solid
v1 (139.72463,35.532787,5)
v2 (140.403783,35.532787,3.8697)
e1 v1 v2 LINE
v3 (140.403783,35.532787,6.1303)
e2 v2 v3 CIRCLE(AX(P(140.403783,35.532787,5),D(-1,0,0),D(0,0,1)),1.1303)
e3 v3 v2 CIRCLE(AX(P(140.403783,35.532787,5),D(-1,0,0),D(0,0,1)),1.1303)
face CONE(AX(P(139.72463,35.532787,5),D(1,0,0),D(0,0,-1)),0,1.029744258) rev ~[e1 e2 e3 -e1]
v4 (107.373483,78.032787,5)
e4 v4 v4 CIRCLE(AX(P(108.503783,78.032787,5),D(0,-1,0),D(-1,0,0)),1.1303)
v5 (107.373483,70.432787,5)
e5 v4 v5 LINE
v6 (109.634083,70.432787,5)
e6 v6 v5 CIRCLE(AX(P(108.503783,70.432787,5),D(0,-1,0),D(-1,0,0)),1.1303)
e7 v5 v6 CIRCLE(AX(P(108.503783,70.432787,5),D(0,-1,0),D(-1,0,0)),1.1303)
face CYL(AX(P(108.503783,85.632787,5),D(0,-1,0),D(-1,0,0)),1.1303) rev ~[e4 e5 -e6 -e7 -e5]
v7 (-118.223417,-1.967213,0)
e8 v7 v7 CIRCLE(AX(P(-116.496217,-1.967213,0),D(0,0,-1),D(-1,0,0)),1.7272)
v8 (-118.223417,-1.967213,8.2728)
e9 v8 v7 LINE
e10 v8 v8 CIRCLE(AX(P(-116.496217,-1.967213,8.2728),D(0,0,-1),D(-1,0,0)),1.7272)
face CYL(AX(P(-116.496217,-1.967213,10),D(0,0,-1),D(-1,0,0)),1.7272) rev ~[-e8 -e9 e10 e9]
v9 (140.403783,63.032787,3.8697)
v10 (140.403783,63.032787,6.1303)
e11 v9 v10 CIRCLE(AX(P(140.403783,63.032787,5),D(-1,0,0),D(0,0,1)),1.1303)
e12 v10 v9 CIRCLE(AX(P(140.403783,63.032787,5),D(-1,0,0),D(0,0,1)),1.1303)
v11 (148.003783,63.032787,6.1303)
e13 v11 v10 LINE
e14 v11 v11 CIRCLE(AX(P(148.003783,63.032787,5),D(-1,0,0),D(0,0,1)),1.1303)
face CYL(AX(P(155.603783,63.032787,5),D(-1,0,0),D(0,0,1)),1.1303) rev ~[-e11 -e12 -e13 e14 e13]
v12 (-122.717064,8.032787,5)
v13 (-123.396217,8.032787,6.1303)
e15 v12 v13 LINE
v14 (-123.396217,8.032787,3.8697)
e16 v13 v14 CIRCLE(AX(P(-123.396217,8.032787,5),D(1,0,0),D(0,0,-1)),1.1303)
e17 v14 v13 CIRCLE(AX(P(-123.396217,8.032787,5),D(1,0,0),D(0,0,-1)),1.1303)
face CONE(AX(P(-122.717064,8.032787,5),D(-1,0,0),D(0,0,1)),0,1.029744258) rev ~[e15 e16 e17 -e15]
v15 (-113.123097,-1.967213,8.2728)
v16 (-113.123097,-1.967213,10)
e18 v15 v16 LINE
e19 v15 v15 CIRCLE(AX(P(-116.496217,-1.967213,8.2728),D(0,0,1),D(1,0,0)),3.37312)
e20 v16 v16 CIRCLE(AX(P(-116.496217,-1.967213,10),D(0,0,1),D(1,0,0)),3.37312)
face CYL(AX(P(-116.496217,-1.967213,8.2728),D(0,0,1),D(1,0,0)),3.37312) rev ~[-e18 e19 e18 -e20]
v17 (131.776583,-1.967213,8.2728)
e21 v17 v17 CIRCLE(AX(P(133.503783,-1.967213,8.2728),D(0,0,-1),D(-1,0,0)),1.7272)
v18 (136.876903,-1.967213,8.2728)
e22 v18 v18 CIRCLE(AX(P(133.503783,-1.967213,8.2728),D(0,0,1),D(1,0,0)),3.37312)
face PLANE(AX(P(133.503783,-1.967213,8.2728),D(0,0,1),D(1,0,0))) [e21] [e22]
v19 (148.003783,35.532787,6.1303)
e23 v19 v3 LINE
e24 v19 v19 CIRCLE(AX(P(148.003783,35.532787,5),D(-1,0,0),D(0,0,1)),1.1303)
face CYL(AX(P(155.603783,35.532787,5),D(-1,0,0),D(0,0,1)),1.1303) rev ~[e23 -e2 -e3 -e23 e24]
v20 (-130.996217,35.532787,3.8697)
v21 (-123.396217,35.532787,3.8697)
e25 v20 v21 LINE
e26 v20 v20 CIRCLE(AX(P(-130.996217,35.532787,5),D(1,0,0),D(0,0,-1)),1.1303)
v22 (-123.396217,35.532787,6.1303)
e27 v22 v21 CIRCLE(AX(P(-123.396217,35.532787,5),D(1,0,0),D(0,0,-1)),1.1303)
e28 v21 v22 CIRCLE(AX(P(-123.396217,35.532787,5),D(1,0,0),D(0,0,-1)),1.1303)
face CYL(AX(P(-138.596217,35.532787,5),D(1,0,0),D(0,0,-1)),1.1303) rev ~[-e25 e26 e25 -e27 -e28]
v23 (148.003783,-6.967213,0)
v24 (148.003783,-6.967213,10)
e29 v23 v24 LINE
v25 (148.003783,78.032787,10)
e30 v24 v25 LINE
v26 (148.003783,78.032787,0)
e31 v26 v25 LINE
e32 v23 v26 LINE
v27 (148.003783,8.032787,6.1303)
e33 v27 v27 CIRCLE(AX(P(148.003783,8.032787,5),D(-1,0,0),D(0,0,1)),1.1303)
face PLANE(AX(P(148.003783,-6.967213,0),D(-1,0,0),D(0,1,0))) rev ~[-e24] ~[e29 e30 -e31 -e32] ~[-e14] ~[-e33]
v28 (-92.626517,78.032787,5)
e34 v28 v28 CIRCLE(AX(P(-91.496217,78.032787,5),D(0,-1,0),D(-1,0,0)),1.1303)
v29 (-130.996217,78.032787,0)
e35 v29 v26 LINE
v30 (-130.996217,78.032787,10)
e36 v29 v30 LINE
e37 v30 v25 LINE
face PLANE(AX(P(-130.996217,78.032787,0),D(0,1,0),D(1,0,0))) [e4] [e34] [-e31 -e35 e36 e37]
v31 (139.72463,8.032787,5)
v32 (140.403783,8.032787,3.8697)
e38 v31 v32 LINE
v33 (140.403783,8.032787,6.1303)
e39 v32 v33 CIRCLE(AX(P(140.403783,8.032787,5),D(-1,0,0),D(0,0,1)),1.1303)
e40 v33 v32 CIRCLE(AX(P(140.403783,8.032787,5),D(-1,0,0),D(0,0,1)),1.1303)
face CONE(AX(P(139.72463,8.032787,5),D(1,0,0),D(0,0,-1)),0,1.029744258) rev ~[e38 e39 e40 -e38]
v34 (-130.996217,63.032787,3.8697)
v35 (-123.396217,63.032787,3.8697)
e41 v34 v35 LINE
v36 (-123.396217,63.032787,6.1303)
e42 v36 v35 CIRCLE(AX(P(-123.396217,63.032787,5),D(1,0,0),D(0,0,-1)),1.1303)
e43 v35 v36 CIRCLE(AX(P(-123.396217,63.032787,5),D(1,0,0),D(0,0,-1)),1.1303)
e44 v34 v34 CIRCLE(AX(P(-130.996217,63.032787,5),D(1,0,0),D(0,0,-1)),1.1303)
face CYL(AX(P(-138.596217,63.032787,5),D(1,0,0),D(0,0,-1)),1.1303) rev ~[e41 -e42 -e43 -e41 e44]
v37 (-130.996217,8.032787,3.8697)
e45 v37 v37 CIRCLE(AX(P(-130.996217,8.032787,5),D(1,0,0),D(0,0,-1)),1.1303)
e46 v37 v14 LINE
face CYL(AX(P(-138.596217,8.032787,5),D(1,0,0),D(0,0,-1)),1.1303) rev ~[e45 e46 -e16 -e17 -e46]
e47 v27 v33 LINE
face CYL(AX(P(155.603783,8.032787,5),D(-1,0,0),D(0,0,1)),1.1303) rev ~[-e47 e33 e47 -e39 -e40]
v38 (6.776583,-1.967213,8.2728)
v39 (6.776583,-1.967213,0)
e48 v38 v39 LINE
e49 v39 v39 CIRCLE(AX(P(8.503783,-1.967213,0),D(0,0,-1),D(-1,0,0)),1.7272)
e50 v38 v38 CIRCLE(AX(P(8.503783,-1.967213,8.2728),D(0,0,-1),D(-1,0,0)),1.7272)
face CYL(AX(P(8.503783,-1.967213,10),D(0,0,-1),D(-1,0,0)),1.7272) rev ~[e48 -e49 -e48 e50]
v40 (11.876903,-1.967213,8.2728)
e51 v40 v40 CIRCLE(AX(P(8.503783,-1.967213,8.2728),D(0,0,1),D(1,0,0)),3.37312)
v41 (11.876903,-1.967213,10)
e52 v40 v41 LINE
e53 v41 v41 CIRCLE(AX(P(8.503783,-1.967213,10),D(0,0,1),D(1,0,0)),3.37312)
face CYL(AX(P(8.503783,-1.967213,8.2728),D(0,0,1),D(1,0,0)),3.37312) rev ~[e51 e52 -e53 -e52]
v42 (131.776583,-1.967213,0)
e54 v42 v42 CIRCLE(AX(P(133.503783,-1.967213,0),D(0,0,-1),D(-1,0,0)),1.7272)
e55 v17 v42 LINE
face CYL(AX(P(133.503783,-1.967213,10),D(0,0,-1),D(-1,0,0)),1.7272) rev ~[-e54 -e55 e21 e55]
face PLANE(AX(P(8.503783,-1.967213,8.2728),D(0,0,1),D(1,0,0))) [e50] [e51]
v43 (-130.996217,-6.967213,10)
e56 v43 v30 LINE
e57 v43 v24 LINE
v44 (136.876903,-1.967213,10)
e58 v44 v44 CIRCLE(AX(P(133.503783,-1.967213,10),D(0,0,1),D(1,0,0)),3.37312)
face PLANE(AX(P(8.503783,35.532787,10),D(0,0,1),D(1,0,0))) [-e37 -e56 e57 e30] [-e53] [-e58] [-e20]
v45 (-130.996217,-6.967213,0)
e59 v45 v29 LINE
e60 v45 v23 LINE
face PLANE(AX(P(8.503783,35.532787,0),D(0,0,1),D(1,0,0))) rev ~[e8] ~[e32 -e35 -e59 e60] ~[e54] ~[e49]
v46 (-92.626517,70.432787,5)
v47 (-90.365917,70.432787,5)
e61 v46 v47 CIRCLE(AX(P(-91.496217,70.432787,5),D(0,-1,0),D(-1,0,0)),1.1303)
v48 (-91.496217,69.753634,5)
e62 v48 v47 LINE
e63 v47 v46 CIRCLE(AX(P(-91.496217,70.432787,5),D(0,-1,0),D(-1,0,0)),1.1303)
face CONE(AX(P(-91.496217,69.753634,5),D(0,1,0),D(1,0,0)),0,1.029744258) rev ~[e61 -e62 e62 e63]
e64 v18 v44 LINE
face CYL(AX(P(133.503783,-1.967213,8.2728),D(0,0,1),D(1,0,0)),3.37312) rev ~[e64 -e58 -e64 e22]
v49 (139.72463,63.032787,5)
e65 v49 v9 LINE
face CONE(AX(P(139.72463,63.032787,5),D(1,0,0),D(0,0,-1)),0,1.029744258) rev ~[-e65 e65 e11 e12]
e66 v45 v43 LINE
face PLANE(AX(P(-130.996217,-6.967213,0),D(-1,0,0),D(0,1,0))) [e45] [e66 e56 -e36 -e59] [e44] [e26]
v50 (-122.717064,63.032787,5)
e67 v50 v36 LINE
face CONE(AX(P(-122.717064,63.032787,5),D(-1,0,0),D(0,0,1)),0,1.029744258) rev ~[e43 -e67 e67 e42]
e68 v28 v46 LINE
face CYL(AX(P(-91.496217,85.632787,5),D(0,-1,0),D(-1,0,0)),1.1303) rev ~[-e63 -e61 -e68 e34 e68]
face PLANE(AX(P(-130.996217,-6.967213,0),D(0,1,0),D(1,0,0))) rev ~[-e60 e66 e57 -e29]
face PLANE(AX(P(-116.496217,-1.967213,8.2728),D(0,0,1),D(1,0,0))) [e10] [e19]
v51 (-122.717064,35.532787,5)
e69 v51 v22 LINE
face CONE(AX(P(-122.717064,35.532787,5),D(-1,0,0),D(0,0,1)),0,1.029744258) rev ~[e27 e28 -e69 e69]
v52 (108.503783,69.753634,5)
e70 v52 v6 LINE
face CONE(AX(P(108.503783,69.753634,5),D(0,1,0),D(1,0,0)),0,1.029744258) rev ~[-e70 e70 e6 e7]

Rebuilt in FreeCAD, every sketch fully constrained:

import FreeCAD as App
import Part
import Sketcher


def add_polygon(sketch, points):
    """Adds a closed chain of lines whose ends are joined by coincident constraints."""
    first, n = sketch.GeometryCount, len(points)
    for a, b in zip(points, points[1:] + points[:1]):
        sketch.addGeometry(Part.LineSegment(App.Vector(*a, 0), App.Vector(*b, 0)), False)
    for i in range(n):
        sketch.addConstraint(Sketcher.Constraint("Coincident", first + i, 2, first + (i + 1) % n, 1))

doc = App.newDocument("Part")
body = doc.addObject("PartDesign::Body", "Body")

sketch1 = body.newObject("Sketcher::SketchObject", "Sketch")
sketch1.AttachmentSupport = (doc.getObject("XY_Plane"), [""])
sketch1.MapMode = "FlatFace"
add_polygon(sketch1, [(-131, 78), (-131, -7), (148, -7), (148, 78)])
sketch1.addConstraint(Sketcher.Constraint("Vertical", 0))
sketch1.addConstraint(Sketcher.Constraint("Horizontal", 1))
sketch1.addConstraint(Sketcher.Constraint("Vertical", 2))
sketch1.addConstraint(Sketcher.Constraint("Horizontal", 3))
sketch1.addConstraint(Sketcher.Constraint("DistanceX", 1, 1, 1, 2, 279.0))
sketch1.addConstraint(Sketcher.Constraint("DistanceY", 0, 2, 0, 1, 85.0))
sketch1.addConstraint(Sketcher.Constraint("DistanceX", 0, 2, -1, 1, 130.996217))
sketch1.addConstraint(Sketcher.Constraint("DistanceY", 0, 2, -1, 1, 6.967213))
pad1 = body.newObject("PartDesign::Pad", "Pad")
pad1.Profile = sketch1
pad1.Length = 10

sketch2 = body.newObject("Sketcher::SketchObject", "Sketch001")
sketch2.AttachmentSupport = (doc.getObject("XY_Plane"), [""])
sketch2.MapMode = "FlatFace"
sketch2.AttachmentOffset = App.Placement(App.Vector(0, 0, 10), App.Rotation())
sketch2.addGeometry(Part.Circle(App.Vector(-116.5, -2, 0), App.Vector(0, 0, 1), 1.7), False)
sketch2.addGeometry(Part.Circle(App.Vector(8.5, -2, 0), App.Vector(0, 0, 1), 1.7), False)
sketch2.addGeometry(Part.Circle(App.Vector(133.5, -2, 0), App.Vector(0, 0, 1), 1.7), False)
sketch2.addConstraint(Sketcher.Constraint("Equal", 0, 1))
sketch2.addConstraint(Sketcher.Constraint("Equal", 1, 2))
sketch2.addConstraint(Sketcher.Constraint("Horizontal", 0, 3, 1, 3))
sketch2.addConstraint(Sketcher.Constraint("Horizontal", 1, 3, 2, 3))
sketch2.addConstraint(Sketcher.Constraint("DistanceX", 0, 3, 1, 3, 125.0))
sketch2.addConstraint(Sketcher.Constraint("DistanceX", 1, 3, 2, 3, 125.0))
sketch2.addConstraint(Sketcher.Constraint("Diameter", 0, 3.4544))
sketch2.addConstraint(Sketcher.Constraint("DistanceX", 0, 3, -1, 1, 116.496217))
sketch2.addConstraint(Sketcher.Constraint("DistanceY", 0, 3, -1, 1, 1.967213))
doc.recompute()
hole = body.newObject("PartDesign::Hole", "Hole")
hole.Profile = sketch2
hole.ThreadType = "None"
hole.Diameter = 3.4544
hole.DepthType = "ThroughAll"
hole.HoleCutType = "Counterbore"
hole.HoleCutDiameter = 6.74624
hole.HoleCutDepth = 1.7272

sketch3 = body.newObject("Sketcher::SketchObject", "Sketch002")
sketch3.AttachmentSupport = (doc.getObject("YZ_Plane"), [""])
sketch3.MapMode = "FlatFace"
sketch3.AttachmentOffset = App.Placement(App.Vector(0, 0, -130.996217), App.Rotation())
sketch3.addGeometry(Part.Circle(App.Vector(63, 5, 0), App.Vector(0, 0, 1), 1.1), False)
sketch3.addGeometry(Part.Circle(App.Vector(35.5, 5, 0), App.Vector(0, 0, 1), 1.1), False)
sketch3.addGeometry(Part.Circle(App.Vector(8, 5, 0), App.Vector(0, 0, 1), 1.1), False)
sketch3.addConstraint(Sketcher.Constraint("Equal", 0, 1))
sketch3.addConstraint(Sketcher.Constraint("Equal", 1, 2))
sketch3.addConstraint(Sketcher.Constraint("Horizontal", 0, 3, 1, 3))
sketch3.addConstraint(Sketcher.Constraint("Horizontal", 1, 3, 2, 3))
sketch3.addConstraint(Sketcher.Constraint("DistanceY", -1, 1, 0, 3, 5.0))
sketch3.addConstraint(Sketcher.Constraint("DistanceX", 2, 3, 0, 3, 55.0))
sketch3.addConstraint(Sketcher.Constraint("Diameter", 0, 2.2606))
sketch3.addConstraint(Sketcher.Constraint("DistanceX", 1, 3, 0, 3, 27.5))
sketch3.addConstraint(Sketcher.Constraint("DistanceX", -1, 1, 0, 3, 63.032787))
doc.recompute()
hole2 = body.newObject("PartDesign::Hole", "Hole001")
hole2.Profile = sketch3
hole2.ThreadType = "None"
hole2.Diameter = 2.2606
hole2.DepthType = "Dimension"
hole2.Depth = 7.6
hole2.DrillPoint = "Angled"
hole2.DrillPointAngle = 118
hole2.Reversed = True

sketch4 = body.newObject("Sketcher::SketchObject", "Sketch003")
sketch4.AttachmentSupport = (doc.getObject("YZ_Plane"), [""])
sketch4.MapMode = "FlatFace"
sketch4.AttachmentOffset = App.Placement(App.Vector(0, 0, 148.003783), App.Rotation())
sketch4.addGeometry(Part.Circle(App.Vector(63, 5, 0), App.Vector(0, 0, 1), 1.1), False)
sketch4.addGeometry(Part.Circle(App.Vector(35.5, 5, 0), App.Vector(0, 0, 1), 1.1), False)
sketch4.addGeometry(Part.Circle(App.Vector(8, 5, 0), App.Vector(0, 0, 1), 1.1), False)
sketch4.addConstraint(Sketcher.Constraint("Equal", 0, 1))
sketch4.addConstraint(Sketcher.Constraint("Equal", 1, 2))
sketch4.addConstraint(Sketcher.Constraint("Horizontal", 0, 3, 1, 3))
sketch4.addConstraint(Sketcher.Constraint("Horizontal", 1, 3, 2, 3))
sketch4.addConstraint(Sketcher.Constraint("DistanceY", -1, 1, 0, 3, 5.0))
sketch4.addConstraint(Sketcher.Constraint("DistanceX", 2, 3, 0, 3, 55.0))
sketch4.addConstraint(Sketcher.Constraint("Diameter", 0, 2.2606))
sketch4.addConstraint(Sketcher.Constraint("DistanceX", 1, 3, 0, 3, 27.5))
sketch4.addConstraint(Sketcher.Constraint("DistanceX", -1, 1, 0, 3, 63.032787))
doc.recompute()
hole3 = body.newObject("PartDesign::Hole", "Hole002")
hole3.Profile = sketch4
hole3.ThreadType = "None"
hole3.Diameter = 2.2606
hole3.DepthType = "Dimension"
hole3.Depth = 7.6
hole3.DrillPoint = "Angled"
hole3.DrillPointAngle = 118

sketch5 = body.newObject("Sketcher::SketchObject", "Sketch004")
sketch5.AttachmentSupport = (doc.getObject("XZ_Plane"), [""])
sketch5.MapMode = "FlatFace"
sketch5.AttachmentOffset = App.Placement(App.Vector(0, 0, -78.032787), App.Rotation())
sketch5.addGeometry(Part.Circle(App.Vector(-91.5, 5, 0), App.Vector(0, 0, 1), 1.1), False)
sketch5.addGeometry(Part.Circle(App.Vector(108.5, 5, 0), App.Vector(0, 0, 1), 1.1), False)
sketch5.addConstraint(Sketcher.Constraint("Equal", 0, 1))
sketch5.addConstraint(Sketcher.Constraint("Horizontal", 0, 3, 1, 3))
sketch5.addConstraint(Sketcher.Constraint("DistanceY", -1, 1, 0, 3, 5.0))
sketch5.addConstraint(Sketcher.Constraint("DistanceX", 0, 3, 1, 3, 200.0))
sketch5.addConstraint(Sketcher.Constraint("Diameter", 0, 2.2606))
sketch5.addConstraint(Sketcher.Constraint("DistanceX", 0, 3, -1, 1, 91.496217))
doc.recompute()
hole4 = body.newObject("PartDesign::Hole", "Hole003")
hole4.Profile = sketch5
hole4.ThreadType = "None"
hole4.Diameter = 2.2606
hole4.DepthType = "Dimension"
hole4.Depth = 7.6
hole4.DrillPoint = "Angled"
hole4.DrillPointAngle = 118
hole4.Reversed = True

doc.recompute()
